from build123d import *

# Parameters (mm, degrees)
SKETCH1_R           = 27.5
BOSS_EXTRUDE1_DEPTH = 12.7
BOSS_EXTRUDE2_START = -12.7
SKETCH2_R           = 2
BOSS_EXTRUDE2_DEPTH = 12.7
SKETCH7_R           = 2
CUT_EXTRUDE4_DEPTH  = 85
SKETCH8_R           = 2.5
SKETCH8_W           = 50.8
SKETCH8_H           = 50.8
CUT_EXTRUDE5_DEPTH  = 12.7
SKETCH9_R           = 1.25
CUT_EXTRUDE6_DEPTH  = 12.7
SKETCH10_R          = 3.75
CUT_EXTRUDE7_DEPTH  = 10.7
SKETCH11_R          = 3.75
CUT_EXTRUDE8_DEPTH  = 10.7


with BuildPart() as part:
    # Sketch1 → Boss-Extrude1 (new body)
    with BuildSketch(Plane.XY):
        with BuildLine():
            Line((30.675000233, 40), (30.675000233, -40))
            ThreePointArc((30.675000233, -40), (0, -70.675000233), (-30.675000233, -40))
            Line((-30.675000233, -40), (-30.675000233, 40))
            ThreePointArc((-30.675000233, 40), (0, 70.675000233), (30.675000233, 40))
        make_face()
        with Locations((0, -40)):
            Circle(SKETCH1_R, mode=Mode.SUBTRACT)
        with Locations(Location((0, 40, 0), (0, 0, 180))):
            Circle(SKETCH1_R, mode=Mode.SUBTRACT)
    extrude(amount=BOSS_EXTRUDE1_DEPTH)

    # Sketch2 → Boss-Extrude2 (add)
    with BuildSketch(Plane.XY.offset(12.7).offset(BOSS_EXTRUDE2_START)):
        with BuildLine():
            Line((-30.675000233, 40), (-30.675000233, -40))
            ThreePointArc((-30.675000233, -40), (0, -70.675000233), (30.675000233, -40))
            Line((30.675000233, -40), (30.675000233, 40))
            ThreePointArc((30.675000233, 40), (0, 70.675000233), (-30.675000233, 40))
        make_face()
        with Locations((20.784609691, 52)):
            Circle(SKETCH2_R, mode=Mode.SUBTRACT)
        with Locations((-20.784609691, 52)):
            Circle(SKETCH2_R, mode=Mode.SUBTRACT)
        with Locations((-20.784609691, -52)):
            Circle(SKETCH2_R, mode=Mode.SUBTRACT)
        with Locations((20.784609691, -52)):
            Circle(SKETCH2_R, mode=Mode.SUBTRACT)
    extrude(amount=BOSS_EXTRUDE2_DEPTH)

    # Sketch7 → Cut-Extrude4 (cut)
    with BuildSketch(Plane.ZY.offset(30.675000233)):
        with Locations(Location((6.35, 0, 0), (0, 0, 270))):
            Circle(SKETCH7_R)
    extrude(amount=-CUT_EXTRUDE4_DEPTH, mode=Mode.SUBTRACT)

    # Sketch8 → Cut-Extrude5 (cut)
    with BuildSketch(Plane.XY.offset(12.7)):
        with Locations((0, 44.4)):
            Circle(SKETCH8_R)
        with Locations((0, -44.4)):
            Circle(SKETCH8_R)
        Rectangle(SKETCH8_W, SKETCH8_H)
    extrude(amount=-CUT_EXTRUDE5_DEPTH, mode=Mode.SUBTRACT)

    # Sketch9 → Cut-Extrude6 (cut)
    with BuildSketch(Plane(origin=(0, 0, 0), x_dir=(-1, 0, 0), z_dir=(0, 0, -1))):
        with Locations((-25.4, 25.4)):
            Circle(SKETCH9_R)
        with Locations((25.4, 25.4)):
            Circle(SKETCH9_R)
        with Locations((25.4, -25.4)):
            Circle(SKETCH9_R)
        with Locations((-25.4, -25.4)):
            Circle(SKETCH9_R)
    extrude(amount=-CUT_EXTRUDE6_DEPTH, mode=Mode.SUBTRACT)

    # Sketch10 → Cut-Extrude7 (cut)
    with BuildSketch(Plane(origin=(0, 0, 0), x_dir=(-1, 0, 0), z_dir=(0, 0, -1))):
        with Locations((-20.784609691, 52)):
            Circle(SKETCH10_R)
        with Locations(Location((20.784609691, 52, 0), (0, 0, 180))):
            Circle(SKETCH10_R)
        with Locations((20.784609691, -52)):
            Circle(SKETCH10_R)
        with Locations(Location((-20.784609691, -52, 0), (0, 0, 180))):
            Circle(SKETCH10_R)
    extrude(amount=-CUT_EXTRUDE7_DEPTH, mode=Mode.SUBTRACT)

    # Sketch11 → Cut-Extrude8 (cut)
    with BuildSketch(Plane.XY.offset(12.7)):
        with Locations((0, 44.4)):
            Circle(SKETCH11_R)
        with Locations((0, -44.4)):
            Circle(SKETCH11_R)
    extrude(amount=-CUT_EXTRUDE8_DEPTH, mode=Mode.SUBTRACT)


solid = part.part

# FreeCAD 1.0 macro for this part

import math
import FreeCAD as App
import Part
import Sketcher

V = App.Vector
Q = App.Units.Quantity

doc = App.newDocument("Part")
body = doc.addObject("PartDesign::Body", "Body")

# Sketch on XY plane
sketch1 = body.newObject("Sketcher::SketchObject", "Sketch")
sketch1.AttachmentSupport = (doc.getObject("XY_Plane"), [""])
sketch1.MapMode = "FlatFace"
sketch1.addGeometry([
    Part.LineSegment(V(30.675, -40, 0), V(30.675, 40, 0)),  # 0
    Part.ArcOfCircle(Part.Circle(V(0, 40, 0), V(0, 0, 1), 30.675), math.radians(0), math.radians(180)),  # 1
    Part.LineSegment(V(-30.675, 40, 0), V(-30.675, -40, 0)),  # 2
    Part.ArcOfCircle(Part.Circle(V(0, -40, 0), V(0, 0, 1), 30.675), math.radians(180), math.radians(360)),  # 3
    Part.Circle(V(0, -40, 0), V(0, 0, 1), 27.5),  # 4
    Part.Circle(V(0, 40, 0), V(0, 0, 1), 27.5),  # 5
], False)
sketch1.addConstraint([
    Sketcher.Constraint("Tangent", 0, 2, 1, 1),
    Sketcher.Constraint("Tangent", 1, 2, 2, 1),
    Sketcher.Constraint("Tangent", 2, 2, 3, 1),
    Sketcher.Constraint("Tangent", 3, 2, 0, 1),
    Sketcher.Constraint("Vertical", 0),
    Sketcher.Constraint("Vertical", 2),
    Sketcher.Constraint("Coincident", 4, 3, 3, 3),
    Sketcher.Constraint("Coincident", 5, 3, 1, 3),
    Sketcher.Constraint("Equal", 4, 5),
    Sketcher.Constraint("Symmetric", 1, 3, 3, 3, -1, 1),
    Sketcher.Constraint("Diameter", 4, Q("55 mm")),
    Sketcher.Constraint("DistanceY", 0, 1, 0, 2, Q("80 mm")),
    Sketcher.Constraint("Radius", 1, Q("30.675 mm")),
])
pad1 = body.newObject("PartDesign::Pad", "Pad")
pad1.Profile = sketch1
pad1.Length = 12.7

# Sketch on XY plane
sketch2 = body.newObject("Sketcher::SketchObject", "Sketch001")
sketch2.AttachmentSupport = (doc.getObject("XY_Plane"), [""])
sketch2.MapMode = "FlatFace"
sketch2.addGeometry([
    Part.LineSegment(V(-30.675, 40, 0), V(-30.675, -40, 0)),  # 0
    Part.ArcOfCircle(Part.Circle(V(0, -40, 0), V(0, 0, 1), 30.675), math.radians(180), math.radians(360)),  # 1
    Part.LineSegment(V(30.675, -40, 0), V(30.675, 40, 0)),  # 2
    Part.ArcOfCircle(Part.Circle(V(0, 40, 0), V(0, 0, 1), 30.675), math.radians(0), math.radians(180)),  # 3
    Part.Circle(V(-20.78461, -52, 0), V(0, 0, 1), 2),  # 4
    Part.Circle(V(20.78461, -52, 0), V(0, 0, 1), 2),  # 5
    Part.Circle(V(-20.78461, 52, 0), V(0, 0, 1), 2),  # 6
    Part.Circle(V(20.78461, 52, 0), V(0, 0, 1), 2),  # 7
], False)
sketch2.addConstraint([
    Sketcher.Constraint("Tangent", 0, 2, 1, 1),
    Sketcher.Constraint("Tangent", 1, 2, 2, 1),
    Sketcher.Constraint("Tangent", 2, 2, 3, 1),
    Sketcher.Constraint("Tangent", 3, 2, 0, 1),
    Sketcher.Constraint("Vertical", 0),
    Sketcher.Constraint("Vertical", 2),
    Sketcher.Constraint("Equal", 4, 5),
    Sketcher.Constraint("Equal", 5, 6),
    Sketcher.Constraint("Equal", 6, 7),
    Sketcher.Constraint("Symmetric", 1, 3, 3, 3, -1, 1),
    Sketcher.Constraint("Symmetric", 5, 3, 6, 3, -1, 1),
    Sketcher.Constraint("Symmetric", 4, 3, 7, 3, -1, 1),
    Sketcher.Constraint("Symmetric", 4, 3, 5, 3, -2),
    Sketcher.Constraint("Diameter", 4, Q("4 mm")),
    Sketcher.Constraint("DistanceY", 0, 2, 0, 1, Q("80 mm")),
    Sketcher.Constraint("DistanceY", 4, 3, -1, 1, Q("52 mm")),
    Sketcher.Constraint("Radius", 1, Q("30.675 mm")),
    Sketcher.Constraint("DistanceX", 4, 3, -1, 1, Q("20.78461 mm")),
])
pad2 = body.newObject("PartDesign::Pad", "Pad001")
pad2.Profile = sketch2
pad2.Length = 12.7

# Sketch on YZ plane
sketch3 = body.newObject("Sketcher::SketchObject", "Sketch002")
sketch3.AttachmentSupport = (doc.getObject("YZ_Plane"), [""])
sketch3.MapMode = "FlatFace"
sketch3.AttachmentOffset = App.Placement(V(0, 0, -30.675), App.Rotation())
sketch3.addGeometry(Part.Circle(V(0, 6.35, 0), V(0, 0, 1), 2), False)
sketch3.addConstraint([
    Sketcher.Constraint("PointOnObject", 0, 3, -2),
    Sketcher.Constraint("Diameter", 0, Q("4 mm")),
    Sketcher.Constraint("DistanceY", -1, 1, 0, 3, Q("6.35 mm")),
])
pocket1 = body.newObject("PartDesign::Pocket", "Pocket")
pocket1.Profile = sketch3
pocket1.Length = 85
pocket1.Reversed = True

# Sketch on XY plane
sketch4 = body.newObject("Sketcher::SketchObject", "Sketch003")
sketch4.AttachmentSupport = (doc.getObject("XY_Plane"), [""])
sketch4.MapMode = "FlatFace"
sketch4.AttachmentOffset = App.Placement(V(0, 0, 12.7), App.Rotation())
sketch4.addGeometry([
    Part.Circle(V(0, 44.4, 0), V(0, 0, 1), 2.5),  # 0
    Part.Circle(V(0, -44.4, 0), V(0, 0, 1), 2.5),  # 1
    Part.LineSegment(V(-25.4, 25.4, 0), V(-25.4, -25.4, 0)),  # 2
    Part.LineSegment(V(-25.4, -25.4, 0), V(25.4, -25.4, 0)),  # 3
    Part.LineSegment(V(25.4, -25.4, 0), V(25.4, 25.4, 0)),  # 4
    Part.LineSegment(V(25.4, 25.4, 0), V(-25.4, 25.4, 0)),  # 5
], False)
sketch4.addConstraint([
    Sketcher.Constraint("Coincident", 2, 2, 3, 1),
    Sketcher.Constraint("Coincident", 3, 2, 4, 1),
    Sketcher.Constraint("Coincident", 4, 2, 5, 1),
    Sketcher.Constraint("Coincident", 5, 2, 2, 1),
    Sketcher.Constraint("Vertical", 2),
    Sketcher.Constraint("Horizontal", 3),
    Sketcher.Constraint("Vertical", 4),
    Sketcher.Constraint("Horizontal", 5),
    Sketcher.Constraint("Equal", 0, 1),
    Sketcher.Constraint("Symmetric", 0, 3, 1, 3, -1, 1),
    Sketcher.Constraint("Symmetric", 2, 2, 4, 2, -1, 1),
    Sketcher.Constraint("PointOnObject", 0, 3, -2),
    Sketcher.Constraint("Equal", 5, 2),
    Sketcher.Constraint("Diameter", 0, Q("5 mm")),
    Sketcher.Constraint("DistanceX", 3, 1, 3, 2, Q("50.8 mm")),
    Sketcher.Constraint("DistanceY", 1, 3, 2, 2, Q("19 mm")),
])
pocket2 = body.newObject("PartDesign::Pocket", "Pocket001")
pocket2.Profile = sketch4
pocket2.Length = 12.7

# Sketch on XY plane
sketch5 = body.newObject("Sketcher::SketchObject", "Sketch004")
sketch5.AttachmentSupport = (doc.getObject("XY_Plane"), [""])
sketch5.MapMode = "FlatFace"
sketch5.addGeometry([
    Part.Circle(V(25.4, 25.4, 0), V(0, 0, 1), 1.25),
    Part.Circle(V(-25.4, 25.4, 0), V(0, 0, 1), 1.25),
    Part.Circle(V(-25.4, -25.4, 0), V(0, 0, 1), 1.25),
    Part.Circle(V(25.4, -25.4, 0), V(0, 0, 1), 1.25),
], False)
sketch5.addConstraint([
    Sketcher.Constraint("Equal", 0, 1),
    Sketcher.Constraint("Equal", 1, 2),
    Sketcher.Constraint("Equal", 2, 3),
    Sketcher.Constraint("Symmetric", 0, 3, 2, 3, -1, 1),
    Sketcher.Constraint("Symmetric", 1, 3, 3, 3, -1, 1),
    Sketcher.Constraint("Symmetric", 0, 3, 1, 3, -2),
    Sketcher.Constraint("Diameter", 0, Q("2.5 mm")),
    Sketcher.Constraint("DistanceX", -1, 1, 0, 3, Q("25.4 mm")),
    Sketcher.Constraint("DistanceY", -1, 1, 0, 3, Q("25.4 mm")),
])
pocket3 = body.newObject("PartDesign::Pocket", "Pocket002")
pocket3.Profile = sketch5
pocket3.Length = 12.7
pocket3.Reversed = True

# Sketch on XY plane
sketch6 = body.newObject("Sketcher::SketchObject", "Sketch005")
sketch6.AttachmentSupport = (doc.getObject("XY_Plane"), [""])
sketch6.MapMode = "FlatFace"
sketch6.addGeometry([
    Part.Circle(V(20.78461, 52, 0), V(0, 0, 1), 3.75),
    Part.Circle(V(-20.78461, 52, 0), V(0, 0, 1), 3.75),
    Part.Circle(V(-20.78461, -52, 0), V(0, 0, 1), 3.75),
    Part.Circle(V(20.78461, -52, 0), V(0, 0, 1), 3.75),
], False)
sketch6.addConstraint([
    Sketcher.Constraint("Equal", 0, 1),
    Sketcher.Constraint("Equal", 1, 2),
    Sketcher.Constraint("Equal", 2, 3),
    Sketcher.Constraint("Symmetric", 0, 3, 2, 3, -1, 1),
    Sketcher.Constraint("Symmetric", 1, 3, 3, 3, -1, 1),
    Sketcher.Constraint("Symmetric", 0, 3, 1, 3, -2),
    Sketcher.Constraint("Diameter", 0, Q("7.5 mm")),
    Sketcher.Constraint("DistanceY", -1, 1, 0, 3, Q("52 mm")),
    Sketcher.Constraint("DistanceX", -1, 1, 0, 3, Q("20.78461 mm")),
])
pocket4 = body.newObject("PartDesign::Pocket", "Pocket003")
pocket4.Profile = sketch6
pocket4.Length = 10.7
pocket4.Reversed = True

# Sketch on XY plane
sketch7 = body.newObject("Sketcher::SketchObject", "Sketch006")
sketch7.AttachmentSupport = (doc.getObject("XY_Plane"), [""])
sketch7.MapMode = "FlatFace"
sketch7.AttachmentOffset = App.Placement(V(0, 0, 12.7), App.Rotation())
sketch7.addGeometry([
    Part.Circle(V(0, 44.4, 0), V(0, 0, 1), 3.75),
    Part.Circle(V(0, -44.4, 0), V(0, 0, 1), 3.75),
], False)
sketch7.addConstraint([
    Sketcher.Constraint("Equal", 0, 1),
    Sketcher.Constraint("Symmetric", 0, 3, 1, 3, -1, 1),
    Sketcher.Constraint("PointOnObject", 0, 3, -2),
    Sketcher.Constraint("Diameter", 0, Q("7.5 mm")),
    Sketcher.Constraint("DistanceY", -1, 1, 0, 3, Q("44.4 mm")),
])
pocket5 = body.newObject("PartDesign::Pocket", "Pocket004")
pocket5.Profile = sketch7
pocket5.Length = 10.7

doc.recompute()
